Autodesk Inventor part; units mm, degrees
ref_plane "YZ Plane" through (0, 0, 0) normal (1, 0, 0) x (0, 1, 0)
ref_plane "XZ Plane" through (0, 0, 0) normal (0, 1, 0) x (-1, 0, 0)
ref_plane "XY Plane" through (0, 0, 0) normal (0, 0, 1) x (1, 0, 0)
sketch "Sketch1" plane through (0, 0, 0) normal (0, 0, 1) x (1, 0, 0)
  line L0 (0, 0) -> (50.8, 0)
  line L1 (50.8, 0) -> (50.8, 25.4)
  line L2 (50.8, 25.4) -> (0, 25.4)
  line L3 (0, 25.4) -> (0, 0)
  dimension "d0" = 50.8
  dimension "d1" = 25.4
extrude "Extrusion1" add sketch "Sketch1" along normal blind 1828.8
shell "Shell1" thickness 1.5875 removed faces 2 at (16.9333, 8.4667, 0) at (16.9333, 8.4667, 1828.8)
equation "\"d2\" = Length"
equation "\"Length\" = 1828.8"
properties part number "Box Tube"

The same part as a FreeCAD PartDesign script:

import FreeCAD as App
import Part
import Sketcher

V = App.Vector
Q = App.Units.Quantity


def faces_at(feature, points):
    """Names of the faces that lie closest to the given points."""
    faces = feature.Shape.Faces
    near = lambda p: min(range(len(faces)), key=lambda i: faces[i].distToShape(Part.Vertex(*p))[0])
    return sorted({f"Face{near(p) + 1}" for p in points})


def add_polygon(sketch, points):
    """Adds a closed chain of lines whose ends are joined by coincident constraints."""
    first, n = sketch.GeometryCount, len(points)
    for a, b in zip(points, points[1:] + points[:1]):
        sketch.addGeometry(Part.LineSegment(App.Vector(*a, 0), App.Vector(*b, 0)), False)
    for i in range(n):
        sketch.addConstraint(Sketcher.Constraint("Coincident", first + i, 2, first + (i + 1) % n, 1))

doc = App.newDocument("Part")
body = doc.addObject("PartDesign::Body", "Body")

# Sketch on XY plane
sketch1 = doc.addObject("Sketcher::SketchObject", "Sketch")
body.addObject(sketch1)
sketch1.AttachmentSupport = (doc.XY_Plane, [""])
sketch1.MapMode = "FlatFace"
add_polygon(sketch1, [(0, 25), (0, 0), (51, 0), (51, 25)])  # lines 0-3
sketch1.addConstraint(Sketcher.Constraint("Vertical", 0))
sketch1.addConstraint(Sketcher.Constraint("Horizontal", 1))
sketch1.addConstraint(Sketcher.Constraint("Vertical", 2))
sketch1.addConstraint(Sketcher.Constraint("Horizontal", 3))
sketch1.addConstraint(Sketcher.Constraint("Coincident", 0, 2, -1, 1))
sketch1.addConstraint(Sketcher.Constraint("DistanceX", 1, 1, 1, 2, Q("2 in")))
sketch1.addConstraint(Sketcher.Constraint("DistanceY", 0, 2, 0, 1, Q("1 in")))
pad1 = doc.addObject("PartDesign::Pad", "Pad")
body.addObject(pad1)
pad1.Profile = sketch1
pad1.Length = Q("72 in")
doc.recompute()

thickness = doc.addObject("PartDesign::Thickness", "Thickness")
body.addObject(thickness)
thickness.Base = (pad1, faces_at(pad1, [(16.933, 8.467, 0), (16.933, 8.467, 1828.8)]))
thickness.Value = Q("0.0625 in")
thickness.Reversed = True
thickness.Join = "Intersection"

doc.recompute()
